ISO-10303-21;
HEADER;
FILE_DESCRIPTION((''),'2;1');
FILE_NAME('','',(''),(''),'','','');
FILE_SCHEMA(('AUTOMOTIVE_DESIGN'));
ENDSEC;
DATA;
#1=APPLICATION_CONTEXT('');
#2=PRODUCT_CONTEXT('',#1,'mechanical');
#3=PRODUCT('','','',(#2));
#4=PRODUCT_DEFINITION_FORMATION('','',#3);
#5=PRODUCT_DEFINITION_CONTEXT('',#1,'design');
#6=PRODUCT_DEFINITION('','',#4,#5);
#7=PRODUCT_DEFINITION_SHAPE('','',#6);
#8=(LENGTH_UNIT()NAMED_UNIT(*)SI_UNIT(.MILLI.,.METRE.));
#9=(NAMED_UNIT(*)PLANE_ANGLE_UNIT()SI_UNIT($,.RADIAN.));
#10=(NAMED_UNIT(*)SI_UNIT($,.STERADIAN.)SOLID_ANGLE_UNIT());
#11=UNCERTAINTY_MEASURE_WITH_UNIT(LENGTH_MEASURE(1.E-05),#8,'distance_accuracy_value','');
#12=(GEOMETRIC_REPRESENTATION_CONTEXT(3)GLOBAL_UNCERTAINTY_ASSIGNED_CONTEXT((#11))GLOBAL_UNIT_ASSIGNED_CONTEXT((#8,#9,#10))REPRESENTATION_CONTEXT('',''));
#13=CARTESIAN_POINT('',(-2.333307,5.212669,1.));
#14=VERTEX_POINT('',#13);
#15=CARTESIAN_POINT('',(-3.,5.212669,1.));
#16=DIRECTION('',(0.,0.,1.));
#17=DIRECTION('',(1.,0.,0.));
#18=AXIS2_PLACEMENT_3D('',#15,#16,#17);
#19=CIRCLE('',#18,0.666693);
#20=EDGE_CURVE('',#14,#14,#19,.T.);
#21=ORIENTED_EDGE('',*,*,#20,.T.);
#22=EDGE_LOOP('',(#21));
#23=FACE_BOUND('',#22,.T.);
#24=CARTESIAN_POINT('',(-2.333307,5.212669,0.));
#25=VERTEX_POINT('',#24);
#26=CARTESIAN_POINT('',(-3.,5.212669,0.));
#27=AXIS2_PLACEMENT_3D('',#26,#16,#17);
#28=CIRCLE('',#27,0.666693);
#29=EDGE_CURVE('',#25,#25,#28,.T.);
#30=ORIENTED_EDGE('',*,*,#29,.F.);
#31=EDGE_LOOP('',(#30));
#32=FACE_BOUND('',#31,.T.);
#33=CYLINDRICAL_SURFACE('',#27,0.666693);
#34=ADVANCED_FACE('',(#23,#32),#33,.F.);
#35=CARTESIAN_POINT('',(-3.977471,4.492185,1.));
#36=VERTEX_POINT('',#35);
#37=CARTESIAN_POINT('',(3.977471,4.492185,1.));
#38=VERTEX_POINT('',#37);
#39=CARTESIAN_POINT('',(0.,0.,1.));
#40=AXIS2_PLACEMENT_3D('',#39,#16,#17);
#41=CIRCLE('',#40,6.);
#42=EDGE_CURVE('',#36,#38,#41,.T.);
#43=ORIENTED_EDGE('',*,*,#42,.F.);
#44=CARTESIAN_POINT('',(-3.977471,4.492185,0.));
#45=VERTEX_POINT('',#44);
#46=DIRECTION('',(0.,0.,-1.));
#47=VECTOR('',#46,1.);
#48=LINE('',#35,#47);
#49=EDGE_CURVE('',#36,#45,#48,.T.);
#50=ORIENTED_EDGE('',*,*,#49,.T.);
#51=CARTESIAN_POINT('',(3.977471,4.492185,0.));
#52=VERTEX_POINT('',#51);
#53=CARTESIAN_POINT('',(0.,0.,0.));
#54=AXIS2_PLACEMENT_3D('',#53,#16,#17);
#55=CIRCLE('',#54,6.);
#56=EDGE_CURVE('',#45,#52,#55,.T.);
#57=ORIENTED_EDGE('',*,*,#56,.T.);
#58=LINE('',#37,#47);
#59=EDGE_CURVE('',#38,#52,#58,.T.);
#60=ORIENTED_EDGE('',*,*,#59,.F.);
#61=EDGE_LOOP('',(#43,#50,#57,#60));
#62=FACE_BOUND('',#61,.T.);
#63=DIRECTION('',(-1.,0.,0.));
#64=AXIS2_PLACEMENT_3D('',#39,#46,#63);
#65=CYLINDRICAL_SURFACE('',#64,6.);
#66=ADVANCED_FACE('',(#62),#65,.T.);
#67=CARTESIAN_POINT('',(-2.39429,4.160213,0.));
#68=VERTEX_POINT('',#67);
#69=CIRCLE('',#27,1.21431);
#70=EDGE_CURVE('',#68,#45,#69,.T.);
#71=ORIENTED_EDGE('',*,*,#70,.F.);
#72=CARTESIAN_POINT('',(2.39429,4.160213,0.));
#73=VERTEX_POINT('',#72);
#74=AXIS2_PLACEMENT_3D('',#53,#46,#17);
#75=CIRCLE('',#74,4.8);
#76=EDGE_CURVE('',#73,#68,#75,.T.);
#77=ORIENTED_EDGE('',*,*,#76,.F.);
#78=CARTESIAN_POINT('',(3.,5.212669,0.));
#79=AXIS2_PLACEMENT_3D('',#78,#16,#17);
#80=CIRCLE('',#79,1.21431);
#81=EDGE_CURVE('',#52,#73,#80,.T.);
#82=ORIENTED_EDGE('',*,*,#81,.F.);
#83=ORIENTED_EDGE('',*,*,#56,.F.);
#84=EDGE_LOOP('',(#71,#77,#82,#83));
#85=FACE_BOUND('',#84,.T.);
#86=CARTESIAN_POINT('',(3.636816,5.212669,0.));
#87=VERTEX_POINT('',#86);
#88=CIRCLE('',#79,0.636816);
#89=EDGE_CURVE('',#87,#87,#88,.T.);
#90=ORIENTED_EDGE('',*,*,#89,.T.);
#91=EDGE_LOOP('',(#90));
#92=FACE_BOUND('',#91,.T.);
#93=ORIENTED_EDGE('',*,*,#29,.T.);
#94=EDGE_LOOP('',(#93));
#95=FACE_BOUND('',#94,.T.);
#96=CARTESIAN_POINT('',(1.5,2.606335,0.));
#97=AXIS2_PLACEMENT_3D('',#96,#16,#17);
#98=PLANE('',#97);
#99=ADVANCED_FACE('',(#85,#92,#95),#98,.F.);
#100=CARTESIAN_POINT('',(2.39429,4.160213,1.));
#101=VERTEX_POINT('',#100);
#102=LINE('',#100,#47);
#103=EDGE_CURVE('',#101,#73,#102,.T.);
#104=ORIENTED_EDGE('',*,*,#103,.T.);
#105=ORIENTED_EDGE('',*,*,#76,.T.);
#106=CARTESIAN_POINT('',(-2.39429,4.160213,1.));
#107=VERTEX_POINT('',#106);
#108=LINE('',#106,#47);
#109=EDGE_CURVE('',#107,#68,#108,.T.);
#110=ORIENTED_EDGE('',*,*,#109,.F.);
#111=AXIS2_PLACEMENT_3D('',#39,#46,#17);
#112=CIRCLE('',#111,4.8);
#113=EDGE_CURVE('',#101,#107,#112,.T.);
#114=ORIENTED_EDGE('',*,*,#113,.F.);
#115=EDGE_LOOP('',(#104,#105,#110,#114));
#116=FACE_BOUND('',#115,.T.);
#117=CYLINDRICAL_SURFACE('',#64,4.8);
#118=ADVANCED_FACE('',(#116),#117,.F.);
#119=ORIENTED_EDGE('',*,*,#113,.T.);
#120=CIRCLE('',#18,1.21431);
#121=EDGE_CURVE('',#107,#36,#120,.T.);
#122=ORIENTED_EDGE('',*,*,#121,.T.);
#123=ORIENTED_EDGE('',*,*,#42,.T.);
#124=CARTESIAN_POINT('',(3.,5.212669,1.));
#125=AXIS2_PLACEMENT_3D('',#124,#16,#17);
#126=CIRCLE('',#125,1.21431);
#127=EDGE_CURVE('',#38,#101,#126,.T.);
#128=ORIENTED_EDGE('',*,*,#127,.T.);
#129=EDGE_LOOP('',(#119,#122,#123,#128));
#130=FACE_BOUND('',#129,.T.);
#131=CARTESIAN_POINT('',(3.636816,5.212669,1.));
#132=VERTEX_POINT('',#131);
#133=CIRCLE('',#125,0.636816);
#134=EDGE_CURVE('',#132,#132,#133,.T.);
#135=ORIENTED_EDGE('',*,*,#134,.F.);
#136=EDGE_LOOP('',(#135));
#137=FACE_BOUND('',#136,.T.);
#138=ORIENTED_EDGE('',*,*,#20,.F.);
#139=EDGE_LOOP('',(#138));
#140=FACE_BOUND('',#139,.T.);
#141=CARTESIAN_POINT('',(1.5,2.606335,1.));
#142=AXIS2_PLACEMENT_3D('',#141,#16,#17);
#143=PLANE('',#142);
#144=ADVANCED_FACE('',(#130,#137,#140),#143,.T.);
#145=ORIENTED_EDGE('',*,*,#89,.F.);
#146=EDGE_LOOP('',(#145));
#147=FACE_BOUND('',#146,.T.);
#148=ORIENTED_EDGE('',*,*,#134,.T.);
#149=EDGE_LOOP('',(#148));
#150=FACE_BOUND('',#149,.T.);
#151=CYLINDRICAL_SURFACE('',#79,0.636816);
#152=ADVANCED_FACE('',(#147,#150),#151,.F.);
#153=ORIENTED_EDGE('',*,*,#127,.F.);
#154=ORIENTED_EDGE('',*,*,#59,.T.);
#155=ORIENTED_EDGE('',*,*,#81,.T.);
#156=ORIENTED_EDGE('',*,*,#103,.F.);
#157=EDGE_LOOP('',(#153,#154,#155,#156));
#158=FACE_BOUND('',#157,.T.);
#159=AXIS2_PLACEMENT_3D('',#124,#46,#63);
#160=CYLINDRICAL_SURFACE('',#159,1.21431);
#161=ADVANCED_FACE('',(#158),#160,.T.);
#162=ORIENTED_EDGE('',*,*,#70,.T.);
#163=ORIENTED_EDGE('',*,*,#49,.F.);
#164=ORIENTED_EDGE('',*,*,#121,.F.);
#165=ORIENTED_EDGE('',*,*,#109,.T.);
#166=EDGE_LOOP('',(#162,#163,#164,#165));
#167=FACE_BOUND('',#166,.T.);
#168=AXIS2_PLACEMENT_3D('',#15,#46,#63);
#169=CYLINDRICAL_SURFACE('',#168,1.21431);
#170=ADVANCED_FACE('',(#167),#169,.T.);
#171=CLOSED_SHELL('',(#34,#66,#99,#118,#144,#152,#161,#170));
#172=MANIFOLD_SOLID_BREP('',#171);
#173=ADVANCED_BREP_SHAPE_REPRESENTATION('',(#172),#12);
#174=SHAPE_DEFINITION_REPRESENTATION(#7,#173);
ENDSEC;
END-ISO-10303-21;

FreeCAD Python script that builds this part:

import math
import FreeCAD as App
import Part
import Sketcher

doc = App.newDocument("Part")
params = doc.addObject("Spreadsheet::Sheet", "Params")
for row, (alias, value) in enumerate([
    ("sketch1_radius", "6 mm"),
    ("sketch1_radius2", "4.8 mm"),
    ("pad1_length", "1 mm"),
    ("pocket1_length", "1 mm"),
], start=1):
    params.set(f"A{row}", alias)
    params.set(f"B{row}", "=" + value)
    params.setAlias(f"B{row}", alias)

body = doc.addObject("PartDesign::Body", "Body")

# Sketch on XY plane
sketch1 = doc.addObject("Sketcher::SketchObject", "Sketch")
body.addObject(sketch1)
sketch1.AttachmentSupport = (doc.XY_Plane, [""])
sketch1.MapMode = "FlatFace"
sketch1.addGeometry([
    Part.ArcOfCircle(Part.Circle(App.Vector(0, 0, 0), App.Vector(0, 0, 1), 4.8), math.radians(119.921326), math.radians(420.078674)),
    Part.ArcOfCircle(Part.Circle(App.Vector(-3, 5.212669, 0), App.Vector(0, 0, 1), 1.21431), math.radians(-60.078674), math.radians(216.393564)),
    Part.ArcOfCircle(Part.Circle(App.Vector(0, 0, 0), App.Vector(0, 0, 1), 6), math.radians(131.522328), math.radians(408.477672)),
    Part.ArcOfCircle(Part.Circle(App.Vector(3, 5.212669, 0), App.Vector(0, 0, 1), 1.21431), math.radians(-36.393564), math.radians(240.078674)),
], False)
sketch1.addConstraint([
    Sketcher.Constraint("Tangent", 0, 1, 1, 1),
    Sketcher.Constraint("Coincident", 1, 2, 2, 1),
    Sketcher.Constraint("Coincident", 2, 2, 3, 1),
    Sketcher.Constraint("Tangent", 3, 2, 0, 2),
    Sketcher.Constraint("Coincident", 0, 3, -1, 1),
    Sketcher.Constraint("Coincident", 2, 3, -1, 1),
    Sketcher.Constraint("Equal", 1, 3),
    Sketcher.Constraint("Horizontal", 1, 3, 3, 3),
    Sketcher.Constraint("Radius", 2, 6.0),
    Sketcher.Constraint("Radius", 0, 4.8),
    Sketcher.Constraint("DistanceX", 1, 3, -1, 1, 3.0),
    Sketcher.Constraint("Radius", 1, 1.21431),
])
sketch1.setExpression("Constraints[8]", "Params.sketch1_radius")
sketch1.setExpression("Constraints[9]", "Params.sketch1_radius2")
pad1 = doc.addObject("PartDesign::Pad", "Pad")
body.addObject(pad1)
pad1.Profile = sketch1
pad1.setExpression("Length", "Params.pad1_length")

# Sketch on XY plane
sketch2 = doc.addObject("Sketcher::SketchObject", "Sketch001")
body.addObject(sketch2)
sketch2.AttachmentSupport = (doc.XY_Plane, [""])
sketch2.MapMode = "FlatFace"
sketch2.AttachmentOffset = App.Placement(App.Vector(0, 0, 1), App.Rotation())
sketch2.addGeometry([
    Part.Circle(App.Vector(-3, 5.212669, 0), App.Vector(0, 0, 1), 0.666693),
    Part.Circle(App.Vector(3, 5.212669, 0), App.Vector(0, 0, 1), 0.636816),
], False)
sketch2.addConstraint([
    Sketcher.Constraint("Symmetric", 0, 3, 1, 3, -2),
    Sketcher.Constraint("DistanceX", 0, 3, -1, 1, 3.0),
    Sketcher.Constraint("Diameter", 0, 1.333386),
    Sketcher.Constraint("Diameter", 1, 1.273633),
    Sketcher.Constraint("DistanceY", -1, 1, 0, 3, 5.212669),
])
pocket1 = doc.addObject("PartDesign::Pocket", "Pocket")
body.addObject(pocket1)
pocket1.Profile = sketch2
pocket1.setExpression("Length", "Params.pocket1_length")

doc.recompute()
